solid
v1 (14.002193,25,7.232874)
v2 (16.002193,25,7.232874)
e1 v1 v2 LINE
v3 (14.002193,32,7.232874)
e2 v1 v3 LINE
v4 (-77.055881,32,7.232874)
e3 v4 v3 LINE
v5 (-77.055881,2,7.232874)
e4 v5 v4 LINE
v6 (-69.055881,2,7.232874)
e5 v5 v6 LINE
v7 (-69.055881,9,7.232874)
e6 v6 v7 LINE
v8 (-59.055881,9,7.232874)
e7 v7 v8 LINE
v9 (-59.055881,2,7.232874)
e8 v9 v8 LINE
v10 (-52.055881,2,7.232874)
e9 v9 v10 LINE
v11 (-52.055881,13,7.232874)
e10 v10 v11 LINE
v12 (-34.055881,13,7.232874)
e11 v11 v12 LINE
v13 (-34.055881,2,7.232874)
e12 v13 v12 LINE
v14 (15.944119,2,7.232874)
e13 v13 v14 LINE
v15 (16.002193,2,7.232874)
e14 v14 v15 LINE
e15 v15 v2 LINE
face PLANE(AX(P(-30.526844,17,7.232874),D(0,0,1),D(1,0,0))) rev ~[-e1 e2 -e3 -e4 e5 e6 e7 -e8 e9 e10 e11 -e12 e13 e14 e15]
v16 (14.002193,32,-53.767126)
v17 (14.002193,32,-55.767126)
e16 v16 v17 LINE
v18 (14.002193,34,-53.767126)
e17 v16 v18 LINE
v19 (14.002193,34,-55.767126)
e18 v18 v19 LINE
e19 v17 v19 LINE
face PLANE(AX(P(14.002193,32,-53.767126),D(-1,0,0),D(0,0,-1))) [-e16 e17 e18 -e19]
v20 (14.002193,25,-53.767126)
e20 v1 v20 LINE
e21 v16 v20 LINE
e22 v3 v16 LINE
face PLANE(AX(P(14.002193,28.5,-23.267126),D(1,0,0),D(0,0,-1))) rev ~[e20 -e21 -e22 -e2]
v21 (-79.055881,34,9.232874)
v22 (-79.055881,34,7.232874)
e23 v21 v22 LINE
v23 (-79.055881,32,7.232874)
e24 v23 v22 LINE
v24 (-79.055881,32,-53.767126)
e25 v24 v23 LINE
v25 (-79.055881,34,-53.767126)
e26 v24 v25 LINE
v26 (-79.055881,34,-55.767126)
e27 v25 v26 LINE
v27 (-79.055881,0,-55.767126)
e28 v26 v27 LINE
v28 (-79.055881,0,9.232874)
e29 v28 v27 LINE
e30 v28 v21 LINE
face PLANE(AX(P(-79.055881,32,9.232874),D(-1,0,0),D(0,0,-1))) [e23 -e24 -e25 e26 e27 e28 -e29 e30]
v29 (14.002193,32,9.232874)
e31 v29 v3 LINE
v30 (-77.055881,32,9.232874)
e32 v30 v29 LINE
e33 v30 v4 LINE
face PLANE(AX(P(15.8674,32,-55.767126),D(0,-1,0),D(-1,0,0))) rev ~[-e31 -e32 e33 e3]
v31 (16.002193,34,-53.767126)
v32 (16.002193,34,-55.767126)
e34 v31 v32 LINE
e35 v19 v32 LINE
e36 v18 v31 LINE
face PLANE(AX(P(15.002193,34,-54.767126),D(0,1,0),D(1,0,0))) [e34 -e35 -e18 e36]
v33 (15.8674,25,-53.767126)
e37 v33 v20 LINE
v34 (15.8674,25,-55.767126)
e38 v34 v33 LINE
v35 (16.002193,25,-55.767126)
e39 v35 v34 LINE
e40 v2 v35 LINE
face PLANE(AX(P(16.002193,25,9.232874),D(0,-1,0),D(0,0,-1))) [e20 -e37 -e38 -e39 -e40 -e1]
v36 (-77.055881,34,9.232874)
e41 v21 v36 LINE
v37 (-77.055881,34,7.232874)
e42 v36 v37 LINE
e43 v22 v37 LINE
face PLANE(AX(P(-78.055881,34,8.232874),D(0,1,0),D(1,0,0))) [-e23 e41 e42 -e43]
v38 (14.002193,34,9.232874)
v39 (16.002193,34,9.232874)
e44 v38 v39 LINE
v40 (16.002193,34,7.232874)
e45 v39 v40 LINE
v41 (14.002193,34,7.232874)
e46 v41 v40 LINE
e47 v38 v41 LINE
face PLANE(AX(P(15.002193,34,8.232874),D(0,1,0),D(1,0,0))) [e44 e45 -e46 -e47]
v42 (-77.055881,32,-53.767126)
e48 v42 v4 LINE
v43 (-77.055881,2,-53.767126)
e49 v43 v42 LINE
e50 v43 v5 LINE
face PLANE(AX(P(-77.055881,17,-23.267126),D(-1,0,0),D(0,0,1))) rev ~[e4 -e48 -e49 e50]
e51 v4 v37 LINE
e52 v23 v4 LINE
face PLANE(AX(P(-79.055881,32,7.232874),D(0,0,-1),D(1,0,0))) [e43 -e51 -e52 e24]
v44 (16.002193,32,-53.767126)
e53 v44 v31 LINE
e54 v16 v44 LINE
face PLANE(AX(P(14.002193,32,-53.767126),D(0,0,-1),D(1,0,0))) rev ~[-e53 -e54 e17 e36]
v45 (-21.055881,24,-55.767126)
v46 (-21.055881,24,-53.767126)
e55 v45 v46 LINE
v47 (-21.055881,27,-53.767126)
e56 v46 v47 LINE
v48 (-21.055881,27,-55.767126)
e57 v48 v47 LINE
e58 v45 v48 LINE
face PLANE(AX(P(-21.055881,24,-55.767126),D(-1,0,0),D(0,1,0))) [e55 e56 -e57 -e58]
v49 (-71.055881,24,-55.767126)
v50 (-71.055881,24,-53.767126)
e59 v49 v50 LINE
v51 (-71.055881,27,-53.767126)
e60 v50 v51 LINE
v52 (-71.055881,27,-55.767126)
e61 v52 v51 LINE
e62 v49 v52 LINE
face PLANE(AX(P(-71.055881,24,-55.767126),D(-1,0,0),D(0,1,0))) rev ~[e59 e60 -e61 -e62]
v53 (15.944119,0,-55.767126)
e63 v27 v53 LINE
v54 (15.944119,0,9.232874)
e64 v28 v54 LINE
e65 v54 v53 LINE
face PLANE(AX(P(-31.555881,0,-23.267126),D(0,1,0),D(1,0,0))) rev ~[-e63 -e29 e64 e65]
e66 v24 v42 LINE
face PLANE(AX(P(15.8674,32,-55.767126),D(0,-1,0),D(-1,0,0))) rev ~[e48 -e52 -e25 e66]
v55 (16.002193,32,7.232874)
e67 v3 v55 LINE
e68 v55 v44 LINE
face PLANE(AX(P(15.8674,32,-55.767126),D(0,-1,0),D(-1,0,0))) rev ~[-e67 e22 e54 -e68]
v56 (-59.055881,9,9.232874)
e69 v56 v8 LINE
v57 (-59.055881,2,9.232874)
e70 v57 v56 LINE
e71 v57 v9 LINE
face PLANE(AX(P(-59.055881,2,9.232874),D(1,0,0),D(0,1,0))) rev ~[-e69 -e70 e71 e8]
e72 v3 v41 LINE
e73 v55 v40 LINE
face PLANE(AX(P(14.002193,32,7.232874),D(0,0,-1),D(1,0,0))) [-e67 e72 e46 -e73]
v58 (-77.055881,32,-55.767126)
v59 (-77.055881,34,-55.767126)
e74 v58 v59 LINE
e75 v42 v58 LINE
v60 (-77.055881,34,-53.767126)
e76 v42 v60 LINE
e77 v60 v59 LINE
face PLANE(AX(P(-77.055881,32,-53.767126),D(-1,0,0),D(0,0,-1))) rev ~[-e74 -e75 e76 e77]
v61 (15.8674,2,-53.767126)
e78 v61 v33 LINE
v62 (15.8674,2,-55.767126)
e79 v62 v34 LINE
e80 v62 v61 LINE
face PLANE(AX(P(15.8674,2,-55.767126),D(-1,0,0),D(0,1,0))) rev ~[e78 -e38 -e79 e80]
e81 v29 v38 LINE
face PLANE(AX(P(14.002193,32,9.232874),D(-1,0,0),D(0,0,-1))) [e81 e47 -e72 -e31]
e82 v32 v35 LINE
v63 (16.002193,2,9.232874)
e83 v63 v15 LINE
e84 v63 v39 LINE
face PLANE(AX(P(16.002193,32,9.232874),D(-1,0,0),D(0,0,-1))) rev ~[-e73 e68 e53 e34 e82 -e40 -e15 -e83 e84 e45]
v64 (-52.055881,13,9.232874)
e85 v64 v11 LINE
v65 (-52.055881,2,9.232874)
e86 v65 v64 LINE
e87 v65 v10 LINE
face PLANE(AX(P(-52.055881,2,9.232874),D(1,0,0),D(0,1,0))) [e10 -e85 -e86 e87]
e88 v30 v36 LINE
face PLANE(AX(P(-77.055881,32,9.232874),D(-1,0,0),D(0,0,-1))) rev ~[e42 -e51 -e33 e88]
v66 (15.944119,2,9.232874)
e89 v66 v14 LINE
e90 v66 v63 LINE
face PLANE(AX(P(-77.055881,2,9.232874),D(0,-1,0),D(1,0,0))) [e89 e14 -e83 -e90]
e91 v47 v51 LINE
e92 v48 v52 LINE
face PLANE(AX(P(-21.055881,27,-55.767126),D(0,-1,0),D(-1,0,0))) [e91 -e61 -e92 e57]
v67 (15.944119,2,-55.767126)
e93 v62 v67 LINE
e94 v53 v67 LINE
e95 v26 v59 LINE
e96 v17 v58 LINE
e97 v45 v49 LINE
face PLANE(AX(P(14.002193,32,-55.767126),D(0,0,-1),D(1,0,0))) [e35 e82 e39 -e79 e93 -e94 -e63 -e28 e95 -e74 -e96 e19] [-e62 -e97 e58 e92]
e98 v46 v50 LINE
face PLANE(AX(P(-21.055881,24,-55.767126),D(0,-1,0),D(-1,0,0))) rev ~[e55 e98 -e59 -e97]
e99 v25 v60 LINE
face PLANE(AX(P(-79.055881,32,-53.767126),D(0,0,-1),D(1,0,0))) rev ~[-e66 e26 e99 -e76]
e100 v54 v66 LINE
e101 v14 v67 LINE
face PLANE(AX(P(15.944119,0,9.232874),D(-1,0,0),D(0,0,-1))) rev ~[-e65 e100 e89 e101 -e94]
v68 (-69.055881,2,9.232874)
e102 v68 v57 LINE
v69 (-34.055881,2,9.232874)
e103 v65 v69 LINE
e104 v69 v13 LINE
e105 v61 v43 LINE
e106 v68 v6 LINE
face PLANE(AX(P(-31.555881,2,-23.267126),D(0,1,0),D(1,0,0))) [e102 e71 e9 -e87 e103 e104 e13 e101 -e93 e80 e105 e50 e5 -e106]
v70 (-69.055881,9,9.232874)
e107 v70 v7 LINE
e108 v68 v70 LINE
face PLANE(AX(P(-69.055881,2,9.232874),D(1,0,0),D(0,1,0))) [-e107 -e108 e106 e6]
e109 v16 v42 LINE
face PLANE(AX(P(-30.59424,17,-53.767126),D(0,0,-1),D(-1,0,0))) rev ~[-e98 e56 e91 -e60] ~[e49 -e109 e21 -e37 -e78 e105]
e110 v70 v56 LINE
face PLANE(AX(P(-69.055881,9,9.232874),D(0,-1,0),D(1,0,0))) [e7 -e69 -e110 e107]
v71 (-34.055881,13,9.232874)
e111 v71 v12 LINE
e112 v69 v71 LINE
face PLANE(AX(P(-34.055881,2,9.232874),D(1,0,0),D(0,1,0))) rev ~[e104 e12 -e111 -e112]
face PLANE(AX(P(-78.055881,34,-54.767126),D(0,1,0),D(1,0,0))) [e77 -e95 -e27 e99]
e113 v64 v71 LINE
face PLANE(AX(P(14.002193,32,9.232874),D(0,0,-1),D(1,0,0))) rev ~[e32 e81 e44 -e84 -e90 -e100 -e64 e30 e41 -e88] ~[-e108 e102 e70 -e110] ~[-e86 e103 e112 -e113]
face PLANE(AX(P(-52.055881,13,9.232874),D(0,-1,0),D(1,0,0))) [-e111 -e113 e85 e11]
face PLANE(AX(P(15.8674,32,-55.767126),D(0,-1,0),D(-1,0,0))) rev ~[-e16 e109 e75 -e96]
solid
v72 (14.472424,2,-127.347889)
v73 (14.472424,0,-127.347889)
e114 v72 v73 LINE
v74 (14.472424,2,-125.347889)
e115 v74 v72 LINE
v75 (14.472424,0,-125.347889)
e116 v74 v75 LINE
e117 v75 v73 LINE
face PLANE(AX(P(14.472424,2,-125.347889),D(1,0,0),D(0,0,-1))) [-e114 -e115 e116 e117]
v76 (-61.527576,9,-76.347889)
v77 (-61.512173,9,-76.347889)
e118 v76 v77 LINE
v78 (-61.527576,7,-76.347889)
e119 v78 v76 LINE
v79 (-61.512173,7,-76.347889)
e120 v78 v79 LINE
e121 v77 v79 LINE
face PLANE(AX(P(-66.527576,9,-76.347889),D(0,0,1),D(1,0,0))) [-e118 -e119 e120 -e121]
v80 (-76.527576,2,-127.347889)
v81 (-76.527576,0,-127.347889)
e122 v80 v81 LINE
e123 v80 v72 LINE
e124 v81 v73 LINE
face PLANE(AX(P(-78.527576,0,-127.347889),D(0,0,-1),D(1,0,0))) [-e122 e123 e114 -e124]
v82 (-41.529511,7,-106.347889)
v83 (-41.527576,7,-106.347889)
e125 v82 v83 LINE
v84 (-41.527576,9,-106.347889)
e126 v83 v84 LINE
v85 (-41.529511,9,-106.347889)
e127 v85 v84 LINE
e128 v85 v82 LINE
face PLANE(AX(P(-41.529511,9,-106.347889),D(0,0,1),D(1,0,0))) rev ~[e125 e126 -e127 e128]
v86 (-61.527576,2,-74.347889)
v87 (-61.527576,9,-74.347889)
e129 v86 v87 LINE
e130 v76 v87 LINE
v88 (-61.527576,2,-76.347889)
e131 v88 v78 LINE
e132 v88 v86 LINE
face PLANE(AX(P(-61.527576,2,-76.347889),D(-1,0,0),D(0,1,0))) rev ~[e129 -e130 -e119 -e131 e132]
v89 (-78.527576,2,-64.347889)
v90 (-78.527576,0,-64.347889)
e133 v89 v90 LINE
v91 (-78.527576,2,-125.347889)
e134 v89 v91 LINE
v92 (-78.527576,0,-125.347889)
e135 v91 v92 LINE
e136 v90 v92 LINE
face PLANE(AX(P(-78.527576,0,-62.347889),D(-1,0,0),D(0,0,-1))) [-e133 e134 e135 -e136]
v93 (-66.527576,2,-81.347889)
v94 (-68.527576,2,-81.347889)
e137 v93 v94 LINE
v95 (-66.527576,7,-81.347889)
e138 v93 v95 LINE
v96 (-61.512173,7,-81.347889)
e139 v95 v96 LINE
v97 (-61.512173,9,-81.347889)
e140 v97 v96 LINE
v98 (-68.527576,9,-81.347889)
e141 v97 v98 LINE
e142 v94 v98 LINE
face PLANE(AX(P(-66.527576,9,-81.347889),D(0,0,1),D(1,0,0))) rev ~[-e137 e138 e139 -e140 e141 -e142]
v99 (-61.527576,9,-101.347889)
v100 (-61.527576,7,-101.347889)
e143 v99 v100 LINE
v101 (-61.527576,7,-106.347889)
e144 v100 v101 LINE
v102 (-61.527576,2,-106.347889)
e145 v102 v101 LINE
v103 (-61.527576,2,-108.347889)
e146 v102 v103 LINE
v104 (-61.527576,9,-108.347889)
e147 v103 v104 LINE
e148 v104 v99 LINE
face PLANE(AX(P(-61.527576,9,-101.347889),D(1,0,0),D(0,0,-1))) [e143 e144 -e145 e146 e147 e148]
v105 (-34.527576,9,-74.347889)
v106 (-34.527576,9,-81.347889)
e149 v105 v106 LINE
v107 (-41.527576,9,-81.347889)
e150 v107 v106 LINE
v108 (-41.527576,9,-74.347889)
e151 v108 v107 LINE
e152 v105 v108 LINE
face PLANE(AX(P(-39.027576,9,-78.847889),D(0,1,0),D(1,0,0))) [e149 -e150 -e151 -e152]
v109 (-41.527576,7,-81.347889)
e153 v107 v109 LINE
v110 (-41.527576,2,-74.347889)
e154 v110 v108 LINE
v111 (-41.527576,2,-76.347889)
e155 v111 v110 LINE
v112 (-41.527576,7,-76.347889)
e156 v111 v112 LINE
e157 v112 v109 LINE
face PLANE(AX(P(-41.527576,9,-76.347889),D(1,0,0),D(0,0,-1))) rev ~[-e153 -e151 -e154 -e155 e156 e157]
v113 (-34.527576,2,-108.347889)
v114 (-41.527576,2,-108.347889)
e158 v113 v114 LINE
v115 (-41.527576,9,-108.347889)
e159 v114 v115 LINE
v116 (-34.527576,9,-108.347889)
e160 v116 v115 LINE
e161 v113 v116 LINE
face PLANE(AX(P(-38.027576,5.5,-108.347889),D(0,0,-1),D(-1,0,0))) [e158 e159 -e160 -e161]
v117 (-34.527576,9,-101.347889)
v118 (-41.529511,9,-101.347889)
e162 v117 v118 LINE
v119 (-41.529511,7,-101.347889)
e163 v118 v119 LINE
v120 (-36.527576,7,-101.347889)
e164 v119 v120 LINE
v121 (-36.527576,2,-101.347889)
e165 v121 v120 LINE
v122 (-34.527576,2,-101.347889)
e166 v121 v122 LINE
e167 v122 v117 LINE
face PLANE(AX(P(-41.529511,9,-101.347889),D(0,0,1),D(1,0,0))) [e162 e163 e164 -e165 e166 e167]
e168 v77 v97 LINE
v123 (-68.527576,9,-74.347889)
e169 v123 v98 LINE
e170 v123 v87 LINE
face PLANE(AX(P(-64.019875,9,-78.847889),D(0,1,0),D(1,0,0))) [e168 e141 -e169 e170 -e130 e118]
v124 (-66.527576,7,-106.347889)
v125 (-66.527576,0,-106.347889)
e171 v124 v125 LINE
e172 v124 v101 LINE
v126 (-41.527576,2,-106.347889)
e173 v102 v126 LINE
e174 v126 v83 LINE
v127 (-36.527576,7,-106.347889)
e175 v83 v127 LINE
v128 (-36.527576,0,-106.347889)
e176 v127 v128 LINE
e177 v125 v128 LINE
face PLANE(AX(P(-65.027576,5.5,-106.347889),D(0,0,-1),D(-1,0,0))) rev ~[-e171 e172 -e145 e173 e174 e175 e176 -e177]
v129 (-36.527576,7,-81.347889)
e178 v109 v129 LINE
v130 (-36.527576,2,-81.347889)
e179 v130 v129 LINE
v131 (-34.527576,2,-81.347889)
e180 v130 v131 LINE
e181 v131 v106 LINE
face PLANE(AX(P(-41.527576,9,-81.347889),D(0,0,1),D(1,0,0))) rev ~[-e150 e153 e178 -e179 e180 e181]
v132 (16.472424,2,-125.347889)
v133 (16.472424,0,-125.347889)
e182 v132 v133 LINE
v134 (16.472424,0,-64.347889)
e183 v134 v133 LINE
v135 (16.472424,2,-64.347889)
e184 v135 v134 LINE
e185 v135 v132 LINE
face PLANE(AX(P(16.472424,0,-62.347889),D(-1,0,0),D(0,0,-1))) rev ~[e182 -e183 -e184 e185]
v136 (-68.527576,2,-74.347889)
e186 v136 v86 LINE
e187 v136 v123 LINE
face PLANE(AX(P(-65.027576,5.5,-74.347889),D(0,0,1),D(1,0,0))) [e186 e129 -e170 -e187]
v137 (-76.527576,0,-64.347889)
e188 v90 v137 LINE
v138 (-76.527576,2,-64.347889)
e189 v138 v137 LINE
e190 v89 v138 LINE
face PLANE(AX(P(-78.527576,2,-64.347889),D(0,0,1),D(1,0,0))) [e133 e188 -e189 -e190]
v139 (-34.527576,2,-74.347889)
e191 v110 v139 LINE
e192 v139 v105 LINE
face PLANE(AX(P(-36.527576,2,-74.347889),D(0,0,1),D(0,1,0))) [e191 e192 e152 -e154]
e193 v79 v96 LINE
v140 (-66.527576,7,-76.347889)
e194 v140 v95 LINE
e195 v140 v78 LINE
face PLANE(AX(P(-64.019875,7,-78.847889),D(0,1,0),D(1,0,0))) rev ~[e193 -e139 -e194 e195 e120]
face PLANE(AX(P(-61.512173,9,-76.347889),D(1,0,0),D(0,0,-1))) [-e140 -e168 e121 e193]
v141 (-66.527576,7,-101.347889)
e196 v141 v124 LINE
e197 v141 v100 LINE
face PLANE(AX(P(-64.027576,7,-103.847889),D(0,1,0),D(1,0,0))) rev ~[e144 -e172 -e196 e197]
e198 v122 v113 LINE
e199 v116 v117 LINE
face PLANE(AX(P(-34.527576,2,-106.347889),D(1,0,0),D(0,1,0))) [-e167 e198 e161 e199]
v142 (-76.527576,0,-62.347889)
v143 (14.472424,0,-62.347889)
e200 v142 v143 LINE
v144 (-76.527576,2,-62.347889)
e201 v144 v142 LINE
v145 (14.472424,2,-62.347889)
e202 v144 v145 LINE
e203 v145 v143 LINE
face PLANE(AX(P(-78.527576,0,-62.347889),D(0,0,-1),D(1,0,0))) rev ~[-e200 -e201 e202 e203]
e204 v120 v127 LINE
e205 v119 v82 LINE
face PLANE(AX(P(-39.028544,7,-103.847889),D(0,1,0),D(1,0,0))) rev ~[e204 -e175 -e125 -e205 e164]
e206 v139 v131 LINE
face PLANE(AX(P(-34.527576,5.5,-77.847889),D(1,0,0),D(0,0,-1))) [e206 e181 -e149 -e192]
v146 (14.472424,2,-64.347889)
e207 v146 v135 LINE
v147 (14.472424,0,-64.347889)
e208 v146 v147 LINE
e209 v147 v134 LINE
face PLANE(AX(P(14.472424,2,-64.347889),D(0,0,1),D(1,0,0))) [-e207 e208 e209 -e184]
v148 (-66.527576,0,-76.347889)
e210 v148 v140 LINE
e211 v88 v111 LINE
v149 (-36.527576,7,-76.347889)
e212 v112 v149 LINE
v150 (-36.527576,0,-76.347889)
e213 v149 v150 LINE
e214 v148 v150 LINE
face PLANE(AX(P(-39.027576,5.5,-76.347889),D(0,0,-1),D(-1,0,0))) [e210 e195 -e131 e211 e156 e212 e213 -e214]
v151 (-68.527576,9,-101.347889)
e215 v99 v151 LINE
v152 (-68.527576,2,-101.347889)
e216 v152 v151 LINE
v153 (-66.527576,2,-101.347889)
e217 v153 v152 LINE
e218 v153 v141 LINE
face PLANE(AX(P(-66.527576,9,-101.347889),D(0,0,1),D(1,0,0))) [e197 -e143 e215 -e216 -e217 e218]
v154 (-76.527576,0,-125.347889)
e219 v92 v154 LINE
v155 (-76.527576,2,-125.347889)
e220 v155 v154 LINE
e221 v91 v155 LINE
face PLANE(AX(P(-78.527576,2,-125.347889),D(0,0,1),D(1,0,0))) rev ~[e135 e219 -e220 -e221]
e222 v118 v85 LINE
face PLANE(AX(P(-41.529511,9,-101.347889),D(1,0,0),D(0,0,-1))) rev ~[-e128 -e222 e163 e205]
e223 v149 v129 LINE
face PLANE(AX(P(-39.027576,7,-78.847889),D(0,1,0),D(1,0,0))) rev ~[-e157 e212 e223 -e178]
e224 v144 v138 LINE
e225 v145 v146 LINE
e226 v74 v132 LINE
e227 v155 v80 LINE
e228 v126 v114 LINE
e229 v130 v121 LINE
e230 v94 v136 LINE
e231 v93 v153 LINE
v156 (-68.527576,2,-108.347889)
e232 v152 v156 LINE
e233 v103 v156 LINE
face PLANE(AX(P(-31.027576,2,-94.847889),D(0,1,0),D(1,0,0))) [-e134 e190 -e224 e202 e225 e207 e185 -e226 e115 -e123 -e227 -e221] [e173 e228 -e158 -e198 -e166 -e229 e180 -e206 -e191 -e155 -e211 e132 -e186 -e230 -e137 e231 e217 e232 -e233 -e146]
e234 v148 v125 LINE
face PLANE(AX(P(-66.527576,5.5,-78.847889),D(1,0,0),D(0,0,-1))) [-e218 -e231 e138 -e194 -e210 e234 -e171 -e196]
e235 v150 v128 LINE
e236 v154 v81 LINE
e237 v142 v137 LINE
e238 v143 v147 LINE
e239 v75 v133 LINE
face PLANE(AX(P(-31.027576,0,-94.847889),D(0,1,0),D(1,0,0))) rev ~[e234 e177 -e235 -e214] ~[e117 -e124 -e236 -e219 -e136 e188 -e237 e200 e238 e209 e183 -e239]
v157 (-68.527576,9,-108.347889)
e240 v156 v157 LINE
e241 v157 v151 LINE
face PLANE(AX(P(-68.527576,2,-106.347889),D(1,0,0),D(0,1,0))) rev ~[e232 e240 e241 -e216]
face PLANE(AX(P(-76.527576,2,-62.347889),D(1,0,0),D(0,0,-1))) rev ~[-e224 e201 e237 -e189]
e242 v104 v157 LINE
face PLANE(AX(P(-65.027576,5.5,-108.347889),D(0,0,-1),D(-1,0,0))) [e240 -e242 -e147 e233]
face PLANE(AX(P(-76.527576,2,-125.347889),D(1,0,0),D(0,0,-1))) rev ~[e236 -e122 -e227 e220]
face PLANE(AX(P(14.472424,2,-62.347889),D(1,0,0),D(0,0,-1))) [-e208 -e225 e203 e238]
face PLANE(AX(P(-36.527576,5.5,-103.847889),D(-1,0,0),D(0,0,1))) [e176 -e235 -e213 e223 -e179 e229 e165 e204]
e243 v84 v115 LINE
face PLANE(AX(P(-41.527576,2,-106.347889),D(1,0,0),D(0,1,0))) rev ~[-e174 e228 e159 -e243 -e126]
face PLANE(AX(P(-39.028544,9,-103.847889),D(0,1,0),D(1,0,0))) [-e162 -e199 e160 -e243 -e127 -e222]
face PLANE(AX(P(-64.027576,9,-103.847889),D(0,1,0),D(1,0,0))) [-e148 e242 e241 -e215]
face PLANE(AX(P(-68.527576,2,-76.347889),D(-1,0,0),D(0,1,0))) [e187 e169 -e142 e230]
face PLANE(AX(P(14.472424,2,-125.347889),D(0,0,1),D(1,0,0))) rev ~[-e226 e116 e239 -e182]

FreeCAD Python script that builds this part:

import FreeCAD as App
import Part
import Sketcher


def add_polygon(sketch, points):
    """Adds a closed chain of lines whose ends are joined by coincident constraints."""
    first, n = sketch.GeometryCount, len(points)
    for a, b in zip(points, points[1:] + points[:1]):
        sketch.addGeometry(Part.LineSegment(App.Vector(*a, 0), App.Vector(*b, 0)), False)
    for i in range(n):
        sketch.addConstraint(Sketcher.Constraint("Coincident", first + i, 2, first + (i + 1) % n, 1))

doc = App.newDocument("Part")
body = doc.addObject("PartDesign::Body", "Body")

sketch1 = doc.addObject("Sketcher::SketchObject", "Sketch")
body.addObject(sketch1)
sketch1.AttachmentSupport = (doc.XZ_Plane, [""])
sketch1.MapMode = "FlatFace"
add_polygon(sketch1, [(-79, -56), (-79, 9), (16, 9), (16, -56)])
sketch1.addConstraint(Sketcher.Constraint("Vertical", 0))
sketch1.addConstraint(Sketcher.Constraint("Horizontal", 1))
sketch1.addConstraint(Sketcher.Constraint("Vertical", 2))
sketch1.addConstraint(Sketcher.Constraint("Horizontal", 3))
sketch1.addConstraint(Sketcher.Constraint("DistanceX", 1, 1, 1, 2, 95.0))
sketch1.addConstraint(Sketcher.Constraint("DistanceY", 0, 1, 0, 2, 65.0))
sketch1.addConstraint(Sketcher.Constraint("DistanceX", 0, 2, -1, 1, 79.055881))
sketch1.addConstraint(Sketcher.Constraint("DistanceY", -1, 1, 0, 2, 9.232874))
pad1 = doc.addObject("PartDesign::Pad", "Pad")
body.addObject(pad1)
pad1.Profile = sketch1
pad1.Length = 2
pad1.Reversed = True

sketch2 = doc.addObject("Sketcher::SketchObject", "Sketch001")
body.addObject(sketch2)
sketch2.AttachmentSupport = (doc.YZ_Plane, [""])
sketch2.MapMode = "FlatFace"
sketch2.AttachmentOffset = App.Placement(App.Vector(0, 0, -79.055881), App.Rotation())
add_polygon(sketch2, [(32, -56), (2, -56), (2, 9), (32, 9)])
sketch2.addConstraint(Sketcher.Constraint("Horizontal", 0))
sketch2.addConstraint(Sketcher.Constraint("Vertical", 1))
sketch2.addConstraint(Sketcher.Constraint("Horizontal", 2))
sketch2.addConstraint(Sketcher.Constraint("Vertical", 3))
sketch2.addConstraint(Sketcher.Constraint("DistanceX", 0, 2, 0, 1, 30.0))
sketch2.addConstraint(Sketcher.Constraint("DistanceY", 1, 1, 1, 2, 65.0))
sketch2.addConstraint(Sketcher.Constraint("DistanceX", -1, 1, 0, 2, 2.0))
sketch2.addConstraint(Sketcher.Constraint("DistanceY", 0, 2, -1, 1, 55.767126))
pad2 = doc.addObject("PartDesign::Pad", "Pad001")
body.addObject(pad2)
pad2.Profile = sketch2
pad2.Length = 2

sketch3 = doc.addObject("Sketcher::SketchObject", "Sketch002")
body.addObject(sketch3)
sketch3.AttachmentSupport = (doc.XY_Plane, [""])
sketch3.MapMode = "FlatFace"
sketch3.AttachmentOffset = App.Placement(App.Vector(0, 0, 9.232874), App.Rotation())
add_polygon(sketch3, [(-77, 32), (-77, 2), (16, 2), (16, 32)])
sketch3.addConstraint(Sketcher.Constraint("Vertical", 0))
sketch3.addConstraint(Sketcher.Constraint("Horizontal", 1))
sketch3.addConstraint(Sketcher.Constraint("Vertical", 2))
sketch3.addConstraint(Sketcher.Constraint("Horizontal", 3))
sketch3.addConstraint(Sketcher.Constraint("DistanceY", 0, 2, 0, 1, 30.0))
sketch3.addConstraint(Sketcher.Constraint("DistanceY", -1, 1, 0, 2, 2.0))
sketch3.addConstraint(Sketcher.Constraint("DistanceX", 1, 1, 1, 2, 93.058073))
sketch3.addConstraint(Sketcher.Constraint("DistanceX", 0, 2, -1, 1, 77.055881))
pad3 = doc.addObject("PartDesign::Pad", "Pad002")
body.addObject(pad3)
pad3.Profile = sketch3
pad3.Length = 2
pad3.Reversed = True

sketch4 = doc.addObject("Sketcher::SketchObject", "Sketch003")
body.addObject(sketch4)
sketch4.AttachmentSupport = (doc.XY_Plane, [""])
sketch4.MapMode = "FlatFace"
sketch4.AttachmentOffset = App.Placement(App.Vector(0, 0, -55.767126), App.Rotation())
add_polygon(sketch4, [(16, 32), (16, 2), (-77, 2), (-77, 32)])
sketch4.addConstraint(Sketcher.Constraint("Vertical", 0))
sketch4.addConstraint(Sketcher.Constraint("Horizontal", 1))
sketch4.addConstraint(Sketcher.Constraint("Vertical", 2))
sketch4.addConstraint(Sketcher.Constraint("Horizontal", 3))
sketch4.addConstraint(Sketcher.Constraint("DistanceY", 0, 2, 0, 1, 30.0))
sketch4.addConstraint(Sketcher.Constraint("DistanceY", -1, 1, 0, 2, 2.0))
sketch4.addConstraint(Sketcher.Constraint("DistanceX", 1, 2, 1, 1, 92.923281))
sketch4.addConstraint(Sketcher.Constraint("DistanceX", -1, 1, 0, 2, 15.8674))
pad4 = doc.addObject("PartDesign::Pad", "Pad003")
body.addObject(pad4)
pad4.Profile = sketch4
pad4.Length = 2

sketch5 = doc.addObject("Sketcher::SketchObject", "Sketch004")
body.addObject(sketch5)
sketch5.AttachmentSupport = (doc.XY_Plane, [""])
sketch5.MapMode = "FlatFace"
sketch5.AttachmentOffset = App.Placement(App.Vector(0, 0, 9.232874), App.Rotation())
add_polygon(sketch5, [(-69, 9), (-69, 2), (-59, 2), (-59, 9)])
sketch5.addConstraint(Sketcher.Constraint("Vertical", 0))
sketch5.addConstraint(Sketcher.Constraint("Horizontal", 1))
sketch5.addConstraint(Sketcher.Constraint("Vertical", 2))
sketch5.addConstraint(Sketcher.Constraint("Horizontal", 3))
sketch5.addConstraint(Sketcher.Constraint("DistanceX", 1, 1, 1, 2, 10.0))
sketch5.addConstraint(Sketcher.Constraint("DistanceY", 0, 2, 0, 1, 7.0))
sketch5.addConstraint(Sketcher.Constraint("DistanceY", -1, 1, 0, 2, 2.0))
sketch5.addConstraint(Sketcher.Constraint("DistanceX", 0, 2, -1, 1, 69.055881))
pocket1 = doc.addObject("PartDesign::Pocket", "Pocket")
body.addObject(pocket1)
pocket1.Profile = sketch5
pocket1.Length = 2

sketch6 = doc.addObject("Sketcher::SketchObject", "Sketch005")
body.addObject(sketch6)
sketch6.AttachmentSupport = (doc.XY_Plane, [""])
sketch6.MapMode = "FlatFace"
sketch6.AttachmentOffset = App.Placement(App.Vector(0, 0, 9.232874), App.Rotation())
add_polygon(sketch6, [(-52, 13), (-52, 2), (-34, 2), (-34, 13)])
sketch6.addConstraint(Sketcher.Constraint("Vertical", 0))
sketch6.addConstraint(Sketcher.Constraint("Horizontal", 1))
sketch6.addConstraint(Sketcher.Constraint("Vertical", 2))
sketch6.addConstraint(Sketcher.Constraint("Horizontal", 3))
sketch6.addConstraint(Sketcher.Constraint("DistanceX", 1, 1, 1, 2, 18.0))
sketch6.addConstraint(Sketcher.Constraint("DistanceY", 0, 2, 0, 1, 11.0))
sketch6.addConstraint(Sketcher.Constraint("DistanceY", -1, 1, 0, 2, 2.0))
sketch6.addConstraint(Sketcher.Constraint("DistanceX", 0, 2, -1, 1, 52.055881))
pocket2 = doc.addObject("PartDesign::Pocket", "Pocket001")
body.addObject(pocket2)
pocket2.Profile = sketch6
pocket2.Length = 2

sketch7 = doc.addObject("Sketcher::SketchObject", "Sketch006")
body.addObject(sketch7)
sketch7.AttachmentSupport = (doc.YZ_Plane, [""])
sketch7.MapMode = "FlatFace"
sketch7.AttachmentOffset = App.Placement(App.Vector(0, 0, 16.002193), App.Rotation())
add_polygon(sketch7, [(32, 9), (25, 9), (25, -56), (32, -56)])
sketch7.addConstraint(Sketcher.Constraint("Horizontal", 0))
sketch7.addConstraint(Sketcher.Constraint("Vertical", 1))
sketch7.addConstraint(Sketcher.Constraint("Horizontal", 2))
sketch7.addConstraint(Sketcher.Constraint("Vertical", 3))
sketch7.addConstraint(Sketcher.Constraint("DistanceX", 0, 2, 0, 1, 7.0))
sketch7.addConstraint(Sketcher.Constraint("DistanceY", 1, 2, 1, 1, 65.0))
sketch7.addConstraint(Sketcher.Constraint("DistanceX", -1, 1, 0, 2, 25.0))
sketch7.addConstraint(Sketcher.Constraint("DistanceY", -1, 1, 0, 2, 9.232874))
pad5 = doc.addObject("PartDesign::Pad", "Pad004")
body.addObject(pad5)
pad5.Profile = sketch7
pad5.Length = 2
pad5.Reversed = True

sketch8 = doc.addObject("Sketcher::SketchObject", "Sketch007")
body.addObject(sketch8)
sketch8.AttachmentSupport = (doc.XZ_Plane, [""])
sketch8.MapMode = "FlatFace"
sketch8.AttachmentOffset = App.Placement(App.Vector(0, 0, -32), App.Rotation())
add_polygon(sketch8, [(-79.1, -55.8), (-79.1, -53.8), (-77.1, -53.8), (-77.1, -55.8)])
sketch8.addConstraint(Sketcher.Constraint("Vertical", 0))
sketch8.addConstraint(Sketcher.Constraint("Horizontal", 1))
sketch8.addConstraint(Sketcher.Constraint("Vertical", 2))
sketch8.addConstraint(Sketcher.Constraint("Horizontal", 3))
sketch8.addConstraint(Sketcher.Constraint("Equal", 3, 0))
sketch8.addConstraint(Sketcher.Constraint("DistanceX", 1, 1, 1, 2, 2.0))
sketch8.addConstraint(Sketcher.Constraint("DistanceX", 0, 2, -1, 1, 79.055881))
sketch8.addConstraint(Sketcher.Constraint("DistanceY", 0, 2, -1, 1, 53.767126))
pad6 = doc.addObject("PartDesign::Pad", "Pad005")
body.addObject(pad6)
pad6.Profile = sketch8
pad6.Length = 2
pad6.Reversed = True
doc.recompute()

linearpattern = doc.addObject("PartDesign::LinearPattern", "LinearPattern")
body.addObject(linearpattern)
linearpattern.Originals = [pad6]
linearpattern.Direction = (doc.Z_Axis, [""])
linearpattern.Mode = "offset"
linearpattern.Offset = 63
linearpattern.Occurrences = 2
body.Tip = linearpattern

sketch9 = doc.addObject("Sketcher::SketchObject", "Sketch008")
body.addObject(sketch9)
sketch9.AttachmentSupport = (doc.XZ_Plane, [""])
sketch9.MapMode = "FlatFace"
sketch9.AttachmentOffset = App.Placement(App.Vector(0, 0, -32), App.Rotation())
add_polygon(sketch9, [(14, -55.8), (14, -53.8), (16, -53.8), (16, -55.8)])
sketch9.addConstraint(Sketcher.Constraint("Vertical", 0))
sketch9.addConstraint(Sketcher.Constraint("Horizontal", 1))
sketch9.addConstraint(Sketcher.Constraint("Vertical", 2))
sketch9.addConstraint(Sketcher.Constraint("Horizontal", 3))
sketch9.addConstraint(Sketcher.Constraint("Equal", 3, 0))
sketch9.addConstraint(Sketcher.Constraint("DistanceX", 1, 1, 1, 2, 2.0))
sketch9.addConstraint(Sketcher.Constraint("DistanceX", -1, 1, 0, 2, 14.002193))
sketch9.addConstraint(Sketcher.Constraint("DistanceY", 0, 2, -1, 1, 53.767126))
pad7 = doc.addObject("PartDesign::Pad", "Pad006")
body.addObject(pad7)
pad7.Profile = sketch9
pad7.Length = 2
pad7.Reversed = True
doc.recompute()

linearpattern2 = doc.addObject("PartDesign::LinearPattern", "LinearPattern001")
body.addObject(linearpattern2)
linearpattern2.Originals = [pad7]
linearpattern2.Direction = (doc.Z_Axis, [""])
linearpattern2.Mode = "offset"
linearpattern2.Offset = 63
linearpattern2.Occurrences = 2
body.Tip = linearpattern2

sketch10 = doc.addObject("Sketcher::SketchObject", "Sketch009")
body.addObject(sketch10)
sketch10.AttachmentSupport = (doc.XY_Plane, [""])
sketch10.MapMode = "FlatFace"
sketch10.AttachmentOffset = App.Placement(App.Vector(0, 0, -55.767126), App.Rotation())
add_polygon(sketch10, [(-21.1, 27), (-21.1, 24), (-71.1, 24), (-71.1, 27)])
sketch10.addConstraint(Sketcher.Constraint("Vertical", 0))
sketch10.addConstraint(Sketcher.Constraint("Horizontal", 1))
sketch10.addConstraint(Sketcher.Constraint("Vertical", 2))
sketch10.addConstraint(Sketcher.Constraint("Horizontal", 3))
sketch10.addConstraint(Sketcher.Constraint("DistanceX", 1, 2, 1, 1, 50.0))
sketch10.addConstraint(Sketcher.Constraint("DistanceY", 0, 2, 0, 1, 3.0))
sketch10.addConstraint(Sketcher.Constraint("DistanceY", -1, 1, 0, 2, 24.0))
sketch10.addConstraint(Sketcher.Constraint("DistanceX", 0, 2, -1, 1, 21.055881))
pocket3 = doc.addObject("PartDesign::Pocket", "Pocket002")
body.addObject(pocket3)
pocket3.Profile = sketch10
pocket3.Length = 2
pocket3.Reversed = True
body2 = doc.addObject("PartDesign::Body", "Body001")

sketch11 = doc.addObject("Sketcher::SketchObject", "Sketch010")
body2.addObject(sketch11)
sketch11.AttachmentSupport = (doc.getObject("XZ_Plane001"), [""])
sketch11.MapMode = "FlatFace"
add_polygon(sketch11, [(-79, -127), (-79, -62), (16, -62), (16, -127)])
sketch11.addConstraint(Sketcher.Constraint("Vertical", 0))
sketch11.addConstraint(Sketcher.Constraint("Horizontal", 1))
sketch11.addConstraint(Sketcher.Constraint("Vertical", 2))
sketch11.addConstraint(Sketcher.Constraint("Horizontal", 3))
sketch11.addConstraint(Sketcher.Constraint("DistanceX", 1, 1, 1, 2, 95.0))
sketch11.addConstraint(Sketcher.Constraint("DistanceY", 0, 1, 0, 2, 65.0))
sketch11.addConstraint(Sketcher.Constraint("DistanceY", 0, 2, -1, 1, 62.347889))
sketch11.addConstraint(Sketcher.Constraint("DistanceX", 0, 2, -1, 1, 78.527576))
pad8 = doc.addObject("PartDesign::Pad", "Pad007")
body2.addObject(pad8)
pad8.Profile = sketch11
pad8.Length = 2
pad8.Reversed = True

sketch12 = doc.addObject("Sketcher::SketchObject", "Sketch011")
body2.addObject(sketch12)
sketch12.AttachmentSupport = (doc.getObject("XZ_Plane001"), [""])
sketch12.MapMode = "FlatFace"
sketch12.AttachmentOffset = App.Placement(App.Vector(0, 0, -2), App.Rotation())
add_polygon(sketch12, [(-78.5, -127.3), (-78.5, -125.3), (-76.5, -125.3), (-76.5, -127.3)])
sketch12.addConstraint(Sketcher.Constraint("Vertical", 0))
sketch12.addConstraint(Sketcher.Constraint("Horizontal", 1))
sketch12.addConstraint(Sketcher.Constraint("Vertical", 2))
sketch12.addConstraint(Sketcher.Constraint("Horizontal", 3))
sketch12.addConstraint(Sketcher.Constraint("Equal", 3, 0))
sketch12.addConstraint(Sketcher.Constraint("DistanceX", 1, 1, 1, 2, 2.0))
sketch12.addConstraint(Sketcher.Constraint("DistanceY", 0, 2, -1, 1, 125.347889))
sketch12.addConstraint(Sketcher.Constraint("DistanceX", 0, 2, -1, 1, 78.527576))
pocket4 = doc.addObject("PartDesign::Pocket", "Pocket003")
body2.addObject(pocket4)
pocket4.Profile = sketch12
pocket4.Length = 2
pocket4.Reversed = True
doc.recompute()

linearpattern3 = doc.addObject("PartDesign::LinearPattern", "LinearPattern002")
body2.addObject(linearpattern3)
linearpattern3.Originals = [pocket4]
linearpattern3.Direction = (doc.getObject("Z_Axis001"), [""])
linearpattern3.Mode = "offset"
linearpattern3.Offset = 63
linearpattern3.Occurrences = 2
body2.Tip = linearpattern3

sketch13 = doc.addObject("Sketcher::SketchObject", "Sketch012")
body2.addObject(sketch13)
sketch13.AttachmentSupport = (doc.getObject("XZ_Plane001"), [""])
sketch13.MapMode = "FlatFace"
sketch13.AttachmentOffset = App.Placement(App.Vector(0, 0, -2), App.Rotation())
add_polygon(sketch13, [(14.5, -127.3), (14.5, -125.3), (16.5, -125.3), (16.5, -127.3)])
sketch13.addConstraint(Sketcher.Constraint("Vertical", 0))
sketch13.addConstraint(Sketcher.Constraint("Horizontal", 1))
sketch13.addConstraint(Sketcher.Constraint("Vertical", 2))
sketch13.addConstraint(Sketcher.Constraint("Horizontal", 3))
sketch13.addConstraint(Sketcher.Constraint("Equal", 3, 0))
sketch13.addConstraint(Sketcher.Constraint("DistanceX", 1, 1, 1, 2, 2.0))
sketch13.addConstraint(Sketcher.Constraint("DistanceY", 0, 2, -1, 1, 125.347889))
sketch13.addConstraint(Sketcher.Constraint("DistanceX", -1, 1, 0, 2, 14.472424))
pocket5 = doc.addObject("PartDesign::Pocket", "Pocket004")
body2.addObject(pocket5)
pocket5.Profile = sketch13
pocket5.Length = 2
pocket5.Reversed = True
doc.recompute()

linearpattern4 = doc.addObject("PartDesign::LinearPattern", "LinearPattern003")
body2.addObject(linearpattern4)
linearpattern4.Originals = [pocket5]
linearpattern4.Direction = (doc.getObject("Z_Axis001"), [""])
linearpattern4.Mode = "offset"
linearpattern4.Offset = 63
linearpattern4.Occurrences = 2
body2.Tip = linearpattern4

sketch14 = doc.addObject("Sketcher::SketchObject", "Sketch013")
body2.addObject(sketch14)
sketch14.AttachmentSupport = (doc.getObject("XZ_Plane001"), [""])
sketch14.MapMode = "FlatFace"
sketch14.AttachmentOffset = App.Placement(App.Vector(0, 0, -2), App.Rotation())
add_polygon(sketch14, [(-67, -106), (-67, -76), (-37, -76), (-37, -106)])
sketch14.addConstraint(Sketcher.Constraint("Vertical", 0))
sketch14.addConstraint(Sketcher.Constraint("Horizontal", 1))
sketch14.addConstraint(Sketcher.Constraint("Vertical", 2))
sketch14.addConstraint(Sketcher.Constraint("Horizontal", 3))
sketch14.addConstraint(Sketcher.Constraint("Equal", 3, 0))
sketch14.addConstraint(Sketcher.Constraint("DistanceX", 1, 1, 1, 2, 30.0))
sketch14.addConstraint(Sketcher.Constraint("DistanceY", 0, 2, -1, 1, 76.347889))
sketch14.addConstraint(Sketcher.Constraint("DistanceX", 0, 2, -1, 1, 66.527576))
pocket6 = doc.addObject("PartDesign::Pocket", "Pocket005")
body2.addObject(pocket6)
pocket6.Profile = sketch14
pocket6.Length = 2
pocket6.Reversed = True

sketch15 = doc.addObject("Sketcher::SketchObject", "Sketch014")
body2.addObject(sketch15)
sketch15.AttachmentSupport = (doc.getObject("YZ_Plane001"), [""])
sketch15.MapMode = "FlatFace"
sketch15.AttachmentOffset = App.Placement(App.Vector(0, 0, -66.527576), App.Rotation())
add_polygon(sketch15, [(9, -101), (2, -101), (2, -106), (9, -106)])
sketch15.addConstraint(Sketcher.Constraint("Horizontal", 0))
sketch15.addConstraint(Sketcher.Constraint("Vertical", 1))
sketch15.addConstraint(Sketcher.Constraint("Horizontal", 2))
sketch15.addConstraint(Sketcher.Constraint("Vertical", 3))
sketch15.addConstraint(Sketcher.Constraint("DistanceX", 0, 2, 0, 1, 7.0))
sketch15.addConstraint(Sketcher.Constraint("DistanceY", 1, 2, 1, 1, 5.0))
sketch15.addConstraint(Sketcher.Constraint("DistanceX", -1, 1, 0, 2, 2.0))
sketch15.addConstraint(Sketcher.Constraint("DistanceY", 0, 2, -1, 1, 101.347889))
pad9 = doc.addObject("PartDesign::Pad", "Pad008")
body2.addObject(pad9)
pad9.Profile = sketch15
pad9.Length = 2
pad9.Reversed = True

sketch16 = doc.addObject("Sketcher::SketchObject", "Sketch015")
body2.addObject(sketch16)
sketch16.AttachmentSupport = (doc.getObject("XY_Plane001"), [""])
sketch16.MapMode = "FlatFace"
sketch16.AttachmentOffset = App.Placement(App.Vector(0, 0, -106.347889), App.Rotation())
add_polygon(sketch16, [(-62, 9), (-62, 2), (-69, 2), (-69, 9)])
sketch16.addConstraint(Sketcher.Constraint("Vertical", 0))
sketch16.addConstraint(Sketcher.Constraint("Horizontal", 1))
sketch16.addConstraint(Sketcher.Constraint("Vertical", 2))
sketch16.addConstraint(Sketcher.Constraint("Horizontal", 3))
sketch16.addConstraint(Sketcher.Constraint("Equal", 3, 0))
sketch16.addConstraint(Sketcher.Constraint("DistanceX", 1, 2, 1, 1, 7.0))
sketch16.addConstraint(Sketcher.Constraint("DistanceY", -1, 1, 0, 2, 2.0))
sketch16.addConstraint(Sketcher.Constraint("DistanceX", 0, 2, -1, 1, 61.527576))
pad10 = doc.addObject("PartDesign::Pad", "Pad009")
body2.addObject(pad10)
pad10.Profile = sketch16
pad10.Length = 2
pad10.Reversed = True

sketch17 = doc.addObject("Sketcher::SketchObject", "Sketch016")
body2.addObject(sketch17)
sketch17.AttachmentSupport = (doc.getObject("XZ_Plane001"), [""])
sketch17.MapMode = "FlatFace"
sketch17.AttachmentOffset = App.Placement(App.Vector(0, 0, -9), App.Rotation())
add_polygon(sketch17, [(-67, -106), (-67, -101), (-62, -101), (-62, -106)])
sketch17.addConstraint(Sketcher.Constraint("Vertical", 0))
sketch17.addConstraint(Sketcher.Constraint("Horizontal", 1))
sketch17.addConstraint(Sketcher.Constraint("Vertical", 2))
sketch17.addConstraint(Sketcher.Constraint("Horizontal", 3))
sketch17.addConstraint(Sketcher.Constraint("Equal", 3, 0))
sketch17.addConstraint(Sketcher.Constraint("DistanceX", 1, 1, 1, 2, 5.0))
sketch17.addConstraint(Sketcher.Constraint("DistanceY", 0, 2, -1, 1, 101.347889))
sketch17.addConstraint(Sketcher.Constraint("DistanceX", 0, 2, -1, 1, 66.527576))
pad11 = doc.addObject("PartDesign::Pad", "Pad010")
body2.addObject(pad11)
pad11.Profile = sketch17
pad11.Length = 2

sketch18 = doc.addObject("Sketcher::SketchObject", "Sketch017")
body2.addObject(sketch18)
sketch18.AttachmentSupport = (doc.getObject("YZ_Plane001"), [""])
sketch18.MapMode = "FlatFace"
sketch18.AttachmentOffset = App.Placement(App.Vector(0, 0, -66.527576), App.Rotation())
add_polygon(sketch18, [(9, -76), (2, -76), (2, -81), (9, -81)])
sketch18.addConstraint(Sketcher.Constraint("Horizontal", 0))
sketch18.addConstraint(Sketcher.Constraint("Vertical", 1))
sketch18.addConstraint(Sketcher.Constraint("Horizontal", 2))
sketch18.addConstraint(Sketcher.Constraint("Vertical", 3))
sketch18.addConstraint(Sketcher.Constraint("DistanceX", 0, 2, 0, 1, 7.0))
sketch18.addConstraint(Sketcher.Constraint("DistanceY", 1, 2, 1, 1, 5.0))
sketch18.addConstraint(Sketcher.Constraint("DistanceX", -1, 1, 0, 2, 2.0))
sketch18.addConstraint(Sketcher.Constraint("DistanceY", 0, 2, -1, 1, 76.347889))
pad12 = doc.addObject("PartDesign::Pad", "Pad011")
body2.addObject(pad12)
pad12.Profile = sketch18
pad12.Length = 2
pad12.Reversed = True

sketch19 = doc.addObject("Sketcher::SketchObject", "Sketch018")
body2.addObject(sketch19)
sketch19.AttachmentSupport = (doc.getObject("XY_Plane001"), [""])
sketch19.MapMode = "FlatFace"
sketch19.AttachmentOffset = App.Placement(App.Vector(0, 0, -76.347889), App.Rotation())
add_polygon(sketch19, [(-69, 9), (-69, 2), (-62, 2), (-62, 9)])
sketch19.addConstraint(Sketcher.Constraint("Vertical", 0))
sketch19.addConstraint(Sketcher.Constraint("Horizontal", 1))
sketch19.addConstraint(Sketcher.Constraint("Vertical", 2))
sketch19.addConstraint(Sketcher.Constraint("Horizontal", 3))
sketch19.addConstraint(Sketcher.Constraint("Equal", 3, 0))
sketch19.addConstraint(Sketcher.Constraint("DistanceX", 1, 1, 1, 2, 7.0))
sketch19.addConstraint(Sketcher.Constraint("DistanceY", -1, 1, 0, 2, 2.0))
sketch19.addConstraint(Sketcher.Constraint("DistanceX", 0, 2, -1, 1, 68.527576))
pad13 = doc.addObject("PartDesign::Pad", "Pad012")
body2.addObject(pad13)
pad13.Profile = sketch19
pad13.Length = 2

sketch20 = doc.addObject("Sketcher::SketchObject", "Sketch019")
body2.addObject(sketch20)
sketch20.AttachmentSupport = (doc.getObject("XZ_Plane001"), [""])
sketch20.MapMode = "FlatFace"
sketch20.AttachmentOffset = App.Placement(App.Vector(0, 0, -9), App.Rotation())
add_polygon(sketch20, [(-67, -81), (-67, -76), (-62, -76), (-62, -81)])
sketch20.addConstraint(Sketcher.Constraint("Vertical", 0))
sketch20.addConstraint(Sketcher.Constraint("Horizontal", 1))
sketch20.addConstraint(Sketcher.Constraint("Vertical", 2))
sketch20.addConstraint(Sketcher.Constraint("Horizontal", 3))
sketch20.addConstraint(Sketcher.Constraint("DistanceY", 0, 1, 0, 2, 5.0))
sketch20.addConstraint(Sketcher.Constraint("DistanceX", 1, 1, 1, 2, 5.015403))
sketch20.addConstraint(Sketcher.Constraint("DistanceY", 0, 2, -1, 1, 76.347889))
sketch20.addConstraint(Sketcher.Constraint("DistanceX", 0, 2, -1, 1, 66.527576))
pad14 = doc.addObject("PartDesign::Pad", "Pad013")
body2.addObject(pad14)
pad14.Profile = sketch20
pad14.Length = 2

sketch21 = doc.addObject("Sketcher::SketchObject", "Sketch020")
body2.addObject(sketch21)
sketch21.AttachmentSupport = (doc.getObject("YZ_Plane001"), [""])
sketch21.MapMode = "FlatFace"
sketch21.AttachmentOffset = App.Placement(App.Vector(0, 0, -36.527576), App.Rotation())
add_polygon(sketch21, [(9, -106), (2, -106), (2, -101), (9, -101)])
sketch21.addConstraint(Sketcher.Constraint("Horizontal", 0))
sketch21.addConstraint(Sketcher.Constraint("Vertical", 1))
sketch21.addConstraint(Sketcher.Constraint("Horizontal", 2))
sketch21.addConstraint(Sketcher.Constraint("Vertical", 3))
sketch21.addConstraint(Sketcher.Constraint("DistanceX", 0, 2, 0, 1, 7.0))
sketch21.addConstraint(Sketcher.Constraint("DistanceY", 1, 1, 1, 2, 5.0))
sketch21.addConstraint(Sketcher.Constraint("DistanceX", -1, 1, 0, 2, 2.0))
sketch21.addConstraint(Sketcher.Constraint("DistanceY", 0, 2, -1, 1, 106.347889))
pad15 = doc.addObject("PartDesign::Pad", "Pad014")
body2.addObject(pad15)
pad15.Profile = sketch21
pad15.Length = 2

sketch22 = doc.addObject("Sketcher::SketchObject", "Sketch021")
body2.addObject(sketch22)
sketch22.AttachmentSupport = (doc.getObject("XY_Plane001"), [""])
sketch22.MapMode = "FlatFace"
sketch22.AttachmentOffset = App.Placement(App.Vector(0, 0, -106.347889), App.Rotation())
add_polygon(sketch22, [(-35, 9), (-35, 2), (-42, 2), (-42, 9)])
sketch22.addConstraint(Sketcher.Constraint("Vertical", 0))
sketch22.addConstraint(Sketcher.Constraint("Horizontal", 1))
sketch22.addConstraint(Sketcher.Constraint("Vertical", 2))
sketch22.addConstraint(Sketcher.Constraint("Horizontal", 3))
sketch22.addConstraint(Sketcher.Constraint("Equal", 3, 0))
sketch22.addConstraint(Sketcher.Constraint("DistanceX", 1, 2, 1, 1, 7.0))
sketch22.addConstraint(Sketcher.Constraint("DistanceY", -1, 1, 0, 2, 2.0))
sketch22.addConstraint(Sketcher.Constraint("DistanceX", 0, 2, -1, 1, 34.527576))
pad16 = doc.addObject("PartDesign::Pad", "Pad015")
body2.addObject(pad16)
pad16.Profile = sketch22
pad16.Length = 2
pad16.Reversed = True

sketch23 = doc.addObject("Sketcher::SketchObject", "Sketch022")
body2.addObject(sketch23)
sketch23.AttachmentSupport = (doc.getObject("XZ_Plane001"), [""])
sketch23.MapMode = "FlatFace"
sketch23.AttachmentOffset = App.Placement(App.Vector(0, 0, -9), App.Rotation())
add_polygon(sketch23, [(-42, -106), (-42, -101), (-37, -101), (-37, -106)])
sketch23.addConstraint(Sketcher.Constraint("Vertical", 0))
sketch23.addConstraint(Sketcher.Constraint("Horizontal", 1))
sketch23.addConstraint(Sketcher.Constraint("Vertical", 2))
sketch23.addConstraint(Sketcher.Constraint("Horizontal", 3))
sketch23.addConstraint(Sketcher.Constraint("DistanceY", 0, 1, 0, 2, 5.0))
sketch23.addConstraint(Sketcher.Constraint("DistanceX", 1, 1, 1, 2, 5.001935))
sketch23.addConstraint(Sketcher.Constraint("DistanceX", 0, 2, -1, 1, 41.529511))
sketch23.addConstraint(Sketcher.Constraint("DistanceY", 0, 2, -1, 1, 101.347889))
pad17 = doc.addObject("PartDesign::Pad", "Pad016")
body2.addObject(pad17)
pad17.Profile = sketch23
pad17.Length = 2

sketch24 = doc.addObject("Sketcher::SketchObject", "Sketch023")
body2.addObject(sketch24)
sketch24.AttachmentSupport = (doc.getObject("XY_Plane001"), [""])
sketch24.MapMode = "FlatFace"
sketch24.AttachmentOffset = App.Placement(App.Vector(0, 0, -76.347889), App.Rotation())
add_polygon(sketch24, [(-37, 9), (-37, 2), (-42, 2), (-42, 9)])
sketch24.addConstraint(Sketcher.Constraint("Vertical", 0))
sketch24.addConstraint(Sketcher.Constraint("Horizontal", 1))
sketch24.addConstraint(Sketcher.Constraint("Vertical", 2))
sketch24.addConstraint(Sketcher.Constraint("Horizontal", 3))
sketch24.addConstraint(Sketcher.Constraint("DistanceX", 1, 2, 1, 1, 5.0))
sketch24.addConstraint(Sketcher.Constraint("DistanceY", 0, 2, 0, 1, 7.0))
sketch24.addConstraint(Sketcher.Constraint("DistanceY", -1, 1, 0, 2, 2.0))
sketch24.addConstraint(Sketcher.Constraint("DistanceX", 0, 2, -1, 1, 36.527576))
pad18 = doc.addObject("PartDesign::Pad", "Pad017")
body2.addObject(pad18)
pad18.Profile = sketch24
pad18.Length = 2

sketch25 = doc.addObject("Sketcher::SketchObject", "Sketch024")
body2.addObject(sketch25)
sketch25.AttachmentSupport = (doc.getObject("YZ_Plane001"), [""])
sketch25.MapMode = "FlatFace"
sketch25.AttachmentOffset = App.Placement(App.Vector(0, 0, -36.527576), App.Rotation())
add_polygon(sketch25, [(9, -74), (2, -74), (2, -81), (9, -81)])
sketch25.addConstraint(Sketcher.Constraint("Horizontal", 0))
sketch25.addConstraint(Sketcher.Constraint("Vertical", 1))
sketch25.addConstraint(Sketcher.Constraint("Horizontal", 2))
sketch25.addConstraint(Sketcher.Constraint("Vertical", 3))
sketch25.addConstraint(Sketcher.Constraint("Equal", 2, 1))
sketch25.addConstraint(Sketcher.Constraint("DistanceX", 0, 2, 0, 1, 7.0))
sketch25.addConstraint(Sketcher.Constraint("DistanceX", -1, 1, 0, 2, 2.0))
sketch25.addConstraint(Sketcher.Constraint("DistanceY", 0, 2, -1, 1, 74.347889))
pad19 = doc.addObject("PartDesign::Pad", "Pad018")
body2.addObject(pad19)
pad19.Profile = sketch25
pad19.Length = 2

sketch26 = doc.addObject("Sketcher::SketchObject", "Sketch025")
body2.addObject(sketch26)
sketch26.AttachmentSupport = (doc.getObject("XZ_Plane001"), [""])
sketch26.MapMode = "FlatFace"
sketch26.AttachmentOffset = App.Placement(App.Vector(0, 0, -9), App.Rotation())
add_polygon(sketch26, [(-42, -81), (-42, -76), (-37, -76), (-37, -81)])
sketch26.addConstraint(Sketcher.Constraint("Vertical", 0))
sketch26.addConstraint(Sketcher.Constraint("Horizontal", 1))
sketch26.addConstraint(Sketcher.Constraint("Vertical", 2))
sketch26.addConstraint(Sketcher.Constraint("Horizontal", 3))
sketch26.addConstraint(Sketcher.Constraint("Equal", 3, 0))
sketch26.addConstraint(Sketcher.Constraint("DistanceX", 1, 1, 1, 2, 5.0))
sketch26.addConstraint(Sketcher.Constraint("DistanceY", 0, 2, -1, 1, 76.347889))
sketch26.addConstraint(Sketcher.Constraint("DistanceX", 0, 2, -1, 1, 41.527576))
pad20 = doc.addObject("PartDesign::Pad", "Pad019")
body2.addObject(pad20)
pad20.Profile = sketch26
pad20.Length = 2

doc.recompute()
